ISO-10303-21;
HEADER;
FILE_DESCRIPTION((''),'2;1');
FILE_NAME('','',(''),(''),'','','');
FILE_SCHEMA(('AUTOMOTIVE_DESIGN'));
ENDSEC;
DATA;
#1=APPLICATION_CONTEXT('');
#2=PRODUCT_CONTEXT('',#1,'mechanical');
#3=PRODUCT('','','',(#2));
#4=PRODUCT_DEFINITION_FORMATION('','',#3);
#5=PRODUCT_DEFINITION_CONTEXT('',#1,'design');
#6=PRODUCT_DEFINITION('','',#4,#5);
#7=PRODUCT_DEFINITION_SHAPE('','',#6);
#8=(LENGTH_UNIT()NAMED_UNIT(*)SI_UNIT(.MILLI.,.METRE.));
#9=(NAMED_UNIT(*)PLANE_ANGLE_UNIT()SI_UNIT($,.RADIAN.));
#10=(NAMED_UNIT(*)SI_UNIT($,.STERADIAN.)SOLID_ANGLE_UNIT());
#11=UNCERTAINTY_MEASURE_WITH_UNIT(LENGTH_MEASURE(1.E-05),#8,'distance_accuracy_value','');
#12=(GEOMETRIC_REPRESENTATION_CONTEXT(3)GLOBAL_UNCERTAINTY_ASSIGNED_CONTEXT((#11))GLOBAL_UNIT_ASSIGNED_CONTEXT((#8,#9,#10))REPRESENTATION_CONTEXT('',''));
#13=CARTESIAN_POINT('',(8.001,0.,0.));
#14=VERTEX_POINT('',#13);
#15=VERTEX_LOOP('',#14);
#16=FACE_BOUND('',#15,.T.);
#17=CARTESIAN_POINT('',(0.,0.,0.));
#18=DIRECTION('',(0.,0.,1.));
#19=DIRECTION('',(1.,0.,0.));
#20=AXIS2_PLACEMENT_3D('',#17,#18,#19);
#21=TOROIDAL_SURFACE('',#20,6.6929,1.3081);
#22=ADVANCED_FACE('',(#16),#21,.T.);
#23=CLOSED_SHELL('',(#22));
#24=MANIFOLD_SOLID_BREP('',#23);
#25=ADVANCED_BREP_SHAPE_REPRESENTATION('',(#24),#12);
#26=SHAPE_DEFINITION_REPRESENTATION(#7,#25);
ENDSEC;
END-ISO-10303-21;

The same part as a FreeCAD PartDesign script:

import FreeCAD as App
import Part
import Sketcher

V = App.Vector
Q = App.Units.Quantity

doc = App.newDocument("Part")
body = doc.addObject("PartDesign::Body", "Body")

# Sketch on YZ plane
sketch1 = doc.addObject("Sketcher::SketchObject", "Sketch")
body.addObject(sketch1)
sketch1.AttachmentSupport = (doc.YZ_Plane, [""])
sketch1.MapMode = "FlatFace"
sketch1.addGeometry(Part.Circle(V(-6.7, 0, 0), V(0, 0, 1), 1.3), False)
sketch1.addConstraint([
    Sketcher.Constraint("PointOnObject", 0, 3, -1),
    Sketcher.Constraint("Diameter", 0, Q("0.103 in")),
    Sketcher.Constraint("DistanceX", 0, 3, -1, 1, Q("0.2635 in")),
])
revolution = doc.addObject("PartDesign::Revolution", "Revolution")
body.addObject(revolution)
revolution.Profile = sketch1
revolution.ReferenceAxis = (sketch1, ["V_Axis"])
revolution.Angle = 360

doc.recompute()
